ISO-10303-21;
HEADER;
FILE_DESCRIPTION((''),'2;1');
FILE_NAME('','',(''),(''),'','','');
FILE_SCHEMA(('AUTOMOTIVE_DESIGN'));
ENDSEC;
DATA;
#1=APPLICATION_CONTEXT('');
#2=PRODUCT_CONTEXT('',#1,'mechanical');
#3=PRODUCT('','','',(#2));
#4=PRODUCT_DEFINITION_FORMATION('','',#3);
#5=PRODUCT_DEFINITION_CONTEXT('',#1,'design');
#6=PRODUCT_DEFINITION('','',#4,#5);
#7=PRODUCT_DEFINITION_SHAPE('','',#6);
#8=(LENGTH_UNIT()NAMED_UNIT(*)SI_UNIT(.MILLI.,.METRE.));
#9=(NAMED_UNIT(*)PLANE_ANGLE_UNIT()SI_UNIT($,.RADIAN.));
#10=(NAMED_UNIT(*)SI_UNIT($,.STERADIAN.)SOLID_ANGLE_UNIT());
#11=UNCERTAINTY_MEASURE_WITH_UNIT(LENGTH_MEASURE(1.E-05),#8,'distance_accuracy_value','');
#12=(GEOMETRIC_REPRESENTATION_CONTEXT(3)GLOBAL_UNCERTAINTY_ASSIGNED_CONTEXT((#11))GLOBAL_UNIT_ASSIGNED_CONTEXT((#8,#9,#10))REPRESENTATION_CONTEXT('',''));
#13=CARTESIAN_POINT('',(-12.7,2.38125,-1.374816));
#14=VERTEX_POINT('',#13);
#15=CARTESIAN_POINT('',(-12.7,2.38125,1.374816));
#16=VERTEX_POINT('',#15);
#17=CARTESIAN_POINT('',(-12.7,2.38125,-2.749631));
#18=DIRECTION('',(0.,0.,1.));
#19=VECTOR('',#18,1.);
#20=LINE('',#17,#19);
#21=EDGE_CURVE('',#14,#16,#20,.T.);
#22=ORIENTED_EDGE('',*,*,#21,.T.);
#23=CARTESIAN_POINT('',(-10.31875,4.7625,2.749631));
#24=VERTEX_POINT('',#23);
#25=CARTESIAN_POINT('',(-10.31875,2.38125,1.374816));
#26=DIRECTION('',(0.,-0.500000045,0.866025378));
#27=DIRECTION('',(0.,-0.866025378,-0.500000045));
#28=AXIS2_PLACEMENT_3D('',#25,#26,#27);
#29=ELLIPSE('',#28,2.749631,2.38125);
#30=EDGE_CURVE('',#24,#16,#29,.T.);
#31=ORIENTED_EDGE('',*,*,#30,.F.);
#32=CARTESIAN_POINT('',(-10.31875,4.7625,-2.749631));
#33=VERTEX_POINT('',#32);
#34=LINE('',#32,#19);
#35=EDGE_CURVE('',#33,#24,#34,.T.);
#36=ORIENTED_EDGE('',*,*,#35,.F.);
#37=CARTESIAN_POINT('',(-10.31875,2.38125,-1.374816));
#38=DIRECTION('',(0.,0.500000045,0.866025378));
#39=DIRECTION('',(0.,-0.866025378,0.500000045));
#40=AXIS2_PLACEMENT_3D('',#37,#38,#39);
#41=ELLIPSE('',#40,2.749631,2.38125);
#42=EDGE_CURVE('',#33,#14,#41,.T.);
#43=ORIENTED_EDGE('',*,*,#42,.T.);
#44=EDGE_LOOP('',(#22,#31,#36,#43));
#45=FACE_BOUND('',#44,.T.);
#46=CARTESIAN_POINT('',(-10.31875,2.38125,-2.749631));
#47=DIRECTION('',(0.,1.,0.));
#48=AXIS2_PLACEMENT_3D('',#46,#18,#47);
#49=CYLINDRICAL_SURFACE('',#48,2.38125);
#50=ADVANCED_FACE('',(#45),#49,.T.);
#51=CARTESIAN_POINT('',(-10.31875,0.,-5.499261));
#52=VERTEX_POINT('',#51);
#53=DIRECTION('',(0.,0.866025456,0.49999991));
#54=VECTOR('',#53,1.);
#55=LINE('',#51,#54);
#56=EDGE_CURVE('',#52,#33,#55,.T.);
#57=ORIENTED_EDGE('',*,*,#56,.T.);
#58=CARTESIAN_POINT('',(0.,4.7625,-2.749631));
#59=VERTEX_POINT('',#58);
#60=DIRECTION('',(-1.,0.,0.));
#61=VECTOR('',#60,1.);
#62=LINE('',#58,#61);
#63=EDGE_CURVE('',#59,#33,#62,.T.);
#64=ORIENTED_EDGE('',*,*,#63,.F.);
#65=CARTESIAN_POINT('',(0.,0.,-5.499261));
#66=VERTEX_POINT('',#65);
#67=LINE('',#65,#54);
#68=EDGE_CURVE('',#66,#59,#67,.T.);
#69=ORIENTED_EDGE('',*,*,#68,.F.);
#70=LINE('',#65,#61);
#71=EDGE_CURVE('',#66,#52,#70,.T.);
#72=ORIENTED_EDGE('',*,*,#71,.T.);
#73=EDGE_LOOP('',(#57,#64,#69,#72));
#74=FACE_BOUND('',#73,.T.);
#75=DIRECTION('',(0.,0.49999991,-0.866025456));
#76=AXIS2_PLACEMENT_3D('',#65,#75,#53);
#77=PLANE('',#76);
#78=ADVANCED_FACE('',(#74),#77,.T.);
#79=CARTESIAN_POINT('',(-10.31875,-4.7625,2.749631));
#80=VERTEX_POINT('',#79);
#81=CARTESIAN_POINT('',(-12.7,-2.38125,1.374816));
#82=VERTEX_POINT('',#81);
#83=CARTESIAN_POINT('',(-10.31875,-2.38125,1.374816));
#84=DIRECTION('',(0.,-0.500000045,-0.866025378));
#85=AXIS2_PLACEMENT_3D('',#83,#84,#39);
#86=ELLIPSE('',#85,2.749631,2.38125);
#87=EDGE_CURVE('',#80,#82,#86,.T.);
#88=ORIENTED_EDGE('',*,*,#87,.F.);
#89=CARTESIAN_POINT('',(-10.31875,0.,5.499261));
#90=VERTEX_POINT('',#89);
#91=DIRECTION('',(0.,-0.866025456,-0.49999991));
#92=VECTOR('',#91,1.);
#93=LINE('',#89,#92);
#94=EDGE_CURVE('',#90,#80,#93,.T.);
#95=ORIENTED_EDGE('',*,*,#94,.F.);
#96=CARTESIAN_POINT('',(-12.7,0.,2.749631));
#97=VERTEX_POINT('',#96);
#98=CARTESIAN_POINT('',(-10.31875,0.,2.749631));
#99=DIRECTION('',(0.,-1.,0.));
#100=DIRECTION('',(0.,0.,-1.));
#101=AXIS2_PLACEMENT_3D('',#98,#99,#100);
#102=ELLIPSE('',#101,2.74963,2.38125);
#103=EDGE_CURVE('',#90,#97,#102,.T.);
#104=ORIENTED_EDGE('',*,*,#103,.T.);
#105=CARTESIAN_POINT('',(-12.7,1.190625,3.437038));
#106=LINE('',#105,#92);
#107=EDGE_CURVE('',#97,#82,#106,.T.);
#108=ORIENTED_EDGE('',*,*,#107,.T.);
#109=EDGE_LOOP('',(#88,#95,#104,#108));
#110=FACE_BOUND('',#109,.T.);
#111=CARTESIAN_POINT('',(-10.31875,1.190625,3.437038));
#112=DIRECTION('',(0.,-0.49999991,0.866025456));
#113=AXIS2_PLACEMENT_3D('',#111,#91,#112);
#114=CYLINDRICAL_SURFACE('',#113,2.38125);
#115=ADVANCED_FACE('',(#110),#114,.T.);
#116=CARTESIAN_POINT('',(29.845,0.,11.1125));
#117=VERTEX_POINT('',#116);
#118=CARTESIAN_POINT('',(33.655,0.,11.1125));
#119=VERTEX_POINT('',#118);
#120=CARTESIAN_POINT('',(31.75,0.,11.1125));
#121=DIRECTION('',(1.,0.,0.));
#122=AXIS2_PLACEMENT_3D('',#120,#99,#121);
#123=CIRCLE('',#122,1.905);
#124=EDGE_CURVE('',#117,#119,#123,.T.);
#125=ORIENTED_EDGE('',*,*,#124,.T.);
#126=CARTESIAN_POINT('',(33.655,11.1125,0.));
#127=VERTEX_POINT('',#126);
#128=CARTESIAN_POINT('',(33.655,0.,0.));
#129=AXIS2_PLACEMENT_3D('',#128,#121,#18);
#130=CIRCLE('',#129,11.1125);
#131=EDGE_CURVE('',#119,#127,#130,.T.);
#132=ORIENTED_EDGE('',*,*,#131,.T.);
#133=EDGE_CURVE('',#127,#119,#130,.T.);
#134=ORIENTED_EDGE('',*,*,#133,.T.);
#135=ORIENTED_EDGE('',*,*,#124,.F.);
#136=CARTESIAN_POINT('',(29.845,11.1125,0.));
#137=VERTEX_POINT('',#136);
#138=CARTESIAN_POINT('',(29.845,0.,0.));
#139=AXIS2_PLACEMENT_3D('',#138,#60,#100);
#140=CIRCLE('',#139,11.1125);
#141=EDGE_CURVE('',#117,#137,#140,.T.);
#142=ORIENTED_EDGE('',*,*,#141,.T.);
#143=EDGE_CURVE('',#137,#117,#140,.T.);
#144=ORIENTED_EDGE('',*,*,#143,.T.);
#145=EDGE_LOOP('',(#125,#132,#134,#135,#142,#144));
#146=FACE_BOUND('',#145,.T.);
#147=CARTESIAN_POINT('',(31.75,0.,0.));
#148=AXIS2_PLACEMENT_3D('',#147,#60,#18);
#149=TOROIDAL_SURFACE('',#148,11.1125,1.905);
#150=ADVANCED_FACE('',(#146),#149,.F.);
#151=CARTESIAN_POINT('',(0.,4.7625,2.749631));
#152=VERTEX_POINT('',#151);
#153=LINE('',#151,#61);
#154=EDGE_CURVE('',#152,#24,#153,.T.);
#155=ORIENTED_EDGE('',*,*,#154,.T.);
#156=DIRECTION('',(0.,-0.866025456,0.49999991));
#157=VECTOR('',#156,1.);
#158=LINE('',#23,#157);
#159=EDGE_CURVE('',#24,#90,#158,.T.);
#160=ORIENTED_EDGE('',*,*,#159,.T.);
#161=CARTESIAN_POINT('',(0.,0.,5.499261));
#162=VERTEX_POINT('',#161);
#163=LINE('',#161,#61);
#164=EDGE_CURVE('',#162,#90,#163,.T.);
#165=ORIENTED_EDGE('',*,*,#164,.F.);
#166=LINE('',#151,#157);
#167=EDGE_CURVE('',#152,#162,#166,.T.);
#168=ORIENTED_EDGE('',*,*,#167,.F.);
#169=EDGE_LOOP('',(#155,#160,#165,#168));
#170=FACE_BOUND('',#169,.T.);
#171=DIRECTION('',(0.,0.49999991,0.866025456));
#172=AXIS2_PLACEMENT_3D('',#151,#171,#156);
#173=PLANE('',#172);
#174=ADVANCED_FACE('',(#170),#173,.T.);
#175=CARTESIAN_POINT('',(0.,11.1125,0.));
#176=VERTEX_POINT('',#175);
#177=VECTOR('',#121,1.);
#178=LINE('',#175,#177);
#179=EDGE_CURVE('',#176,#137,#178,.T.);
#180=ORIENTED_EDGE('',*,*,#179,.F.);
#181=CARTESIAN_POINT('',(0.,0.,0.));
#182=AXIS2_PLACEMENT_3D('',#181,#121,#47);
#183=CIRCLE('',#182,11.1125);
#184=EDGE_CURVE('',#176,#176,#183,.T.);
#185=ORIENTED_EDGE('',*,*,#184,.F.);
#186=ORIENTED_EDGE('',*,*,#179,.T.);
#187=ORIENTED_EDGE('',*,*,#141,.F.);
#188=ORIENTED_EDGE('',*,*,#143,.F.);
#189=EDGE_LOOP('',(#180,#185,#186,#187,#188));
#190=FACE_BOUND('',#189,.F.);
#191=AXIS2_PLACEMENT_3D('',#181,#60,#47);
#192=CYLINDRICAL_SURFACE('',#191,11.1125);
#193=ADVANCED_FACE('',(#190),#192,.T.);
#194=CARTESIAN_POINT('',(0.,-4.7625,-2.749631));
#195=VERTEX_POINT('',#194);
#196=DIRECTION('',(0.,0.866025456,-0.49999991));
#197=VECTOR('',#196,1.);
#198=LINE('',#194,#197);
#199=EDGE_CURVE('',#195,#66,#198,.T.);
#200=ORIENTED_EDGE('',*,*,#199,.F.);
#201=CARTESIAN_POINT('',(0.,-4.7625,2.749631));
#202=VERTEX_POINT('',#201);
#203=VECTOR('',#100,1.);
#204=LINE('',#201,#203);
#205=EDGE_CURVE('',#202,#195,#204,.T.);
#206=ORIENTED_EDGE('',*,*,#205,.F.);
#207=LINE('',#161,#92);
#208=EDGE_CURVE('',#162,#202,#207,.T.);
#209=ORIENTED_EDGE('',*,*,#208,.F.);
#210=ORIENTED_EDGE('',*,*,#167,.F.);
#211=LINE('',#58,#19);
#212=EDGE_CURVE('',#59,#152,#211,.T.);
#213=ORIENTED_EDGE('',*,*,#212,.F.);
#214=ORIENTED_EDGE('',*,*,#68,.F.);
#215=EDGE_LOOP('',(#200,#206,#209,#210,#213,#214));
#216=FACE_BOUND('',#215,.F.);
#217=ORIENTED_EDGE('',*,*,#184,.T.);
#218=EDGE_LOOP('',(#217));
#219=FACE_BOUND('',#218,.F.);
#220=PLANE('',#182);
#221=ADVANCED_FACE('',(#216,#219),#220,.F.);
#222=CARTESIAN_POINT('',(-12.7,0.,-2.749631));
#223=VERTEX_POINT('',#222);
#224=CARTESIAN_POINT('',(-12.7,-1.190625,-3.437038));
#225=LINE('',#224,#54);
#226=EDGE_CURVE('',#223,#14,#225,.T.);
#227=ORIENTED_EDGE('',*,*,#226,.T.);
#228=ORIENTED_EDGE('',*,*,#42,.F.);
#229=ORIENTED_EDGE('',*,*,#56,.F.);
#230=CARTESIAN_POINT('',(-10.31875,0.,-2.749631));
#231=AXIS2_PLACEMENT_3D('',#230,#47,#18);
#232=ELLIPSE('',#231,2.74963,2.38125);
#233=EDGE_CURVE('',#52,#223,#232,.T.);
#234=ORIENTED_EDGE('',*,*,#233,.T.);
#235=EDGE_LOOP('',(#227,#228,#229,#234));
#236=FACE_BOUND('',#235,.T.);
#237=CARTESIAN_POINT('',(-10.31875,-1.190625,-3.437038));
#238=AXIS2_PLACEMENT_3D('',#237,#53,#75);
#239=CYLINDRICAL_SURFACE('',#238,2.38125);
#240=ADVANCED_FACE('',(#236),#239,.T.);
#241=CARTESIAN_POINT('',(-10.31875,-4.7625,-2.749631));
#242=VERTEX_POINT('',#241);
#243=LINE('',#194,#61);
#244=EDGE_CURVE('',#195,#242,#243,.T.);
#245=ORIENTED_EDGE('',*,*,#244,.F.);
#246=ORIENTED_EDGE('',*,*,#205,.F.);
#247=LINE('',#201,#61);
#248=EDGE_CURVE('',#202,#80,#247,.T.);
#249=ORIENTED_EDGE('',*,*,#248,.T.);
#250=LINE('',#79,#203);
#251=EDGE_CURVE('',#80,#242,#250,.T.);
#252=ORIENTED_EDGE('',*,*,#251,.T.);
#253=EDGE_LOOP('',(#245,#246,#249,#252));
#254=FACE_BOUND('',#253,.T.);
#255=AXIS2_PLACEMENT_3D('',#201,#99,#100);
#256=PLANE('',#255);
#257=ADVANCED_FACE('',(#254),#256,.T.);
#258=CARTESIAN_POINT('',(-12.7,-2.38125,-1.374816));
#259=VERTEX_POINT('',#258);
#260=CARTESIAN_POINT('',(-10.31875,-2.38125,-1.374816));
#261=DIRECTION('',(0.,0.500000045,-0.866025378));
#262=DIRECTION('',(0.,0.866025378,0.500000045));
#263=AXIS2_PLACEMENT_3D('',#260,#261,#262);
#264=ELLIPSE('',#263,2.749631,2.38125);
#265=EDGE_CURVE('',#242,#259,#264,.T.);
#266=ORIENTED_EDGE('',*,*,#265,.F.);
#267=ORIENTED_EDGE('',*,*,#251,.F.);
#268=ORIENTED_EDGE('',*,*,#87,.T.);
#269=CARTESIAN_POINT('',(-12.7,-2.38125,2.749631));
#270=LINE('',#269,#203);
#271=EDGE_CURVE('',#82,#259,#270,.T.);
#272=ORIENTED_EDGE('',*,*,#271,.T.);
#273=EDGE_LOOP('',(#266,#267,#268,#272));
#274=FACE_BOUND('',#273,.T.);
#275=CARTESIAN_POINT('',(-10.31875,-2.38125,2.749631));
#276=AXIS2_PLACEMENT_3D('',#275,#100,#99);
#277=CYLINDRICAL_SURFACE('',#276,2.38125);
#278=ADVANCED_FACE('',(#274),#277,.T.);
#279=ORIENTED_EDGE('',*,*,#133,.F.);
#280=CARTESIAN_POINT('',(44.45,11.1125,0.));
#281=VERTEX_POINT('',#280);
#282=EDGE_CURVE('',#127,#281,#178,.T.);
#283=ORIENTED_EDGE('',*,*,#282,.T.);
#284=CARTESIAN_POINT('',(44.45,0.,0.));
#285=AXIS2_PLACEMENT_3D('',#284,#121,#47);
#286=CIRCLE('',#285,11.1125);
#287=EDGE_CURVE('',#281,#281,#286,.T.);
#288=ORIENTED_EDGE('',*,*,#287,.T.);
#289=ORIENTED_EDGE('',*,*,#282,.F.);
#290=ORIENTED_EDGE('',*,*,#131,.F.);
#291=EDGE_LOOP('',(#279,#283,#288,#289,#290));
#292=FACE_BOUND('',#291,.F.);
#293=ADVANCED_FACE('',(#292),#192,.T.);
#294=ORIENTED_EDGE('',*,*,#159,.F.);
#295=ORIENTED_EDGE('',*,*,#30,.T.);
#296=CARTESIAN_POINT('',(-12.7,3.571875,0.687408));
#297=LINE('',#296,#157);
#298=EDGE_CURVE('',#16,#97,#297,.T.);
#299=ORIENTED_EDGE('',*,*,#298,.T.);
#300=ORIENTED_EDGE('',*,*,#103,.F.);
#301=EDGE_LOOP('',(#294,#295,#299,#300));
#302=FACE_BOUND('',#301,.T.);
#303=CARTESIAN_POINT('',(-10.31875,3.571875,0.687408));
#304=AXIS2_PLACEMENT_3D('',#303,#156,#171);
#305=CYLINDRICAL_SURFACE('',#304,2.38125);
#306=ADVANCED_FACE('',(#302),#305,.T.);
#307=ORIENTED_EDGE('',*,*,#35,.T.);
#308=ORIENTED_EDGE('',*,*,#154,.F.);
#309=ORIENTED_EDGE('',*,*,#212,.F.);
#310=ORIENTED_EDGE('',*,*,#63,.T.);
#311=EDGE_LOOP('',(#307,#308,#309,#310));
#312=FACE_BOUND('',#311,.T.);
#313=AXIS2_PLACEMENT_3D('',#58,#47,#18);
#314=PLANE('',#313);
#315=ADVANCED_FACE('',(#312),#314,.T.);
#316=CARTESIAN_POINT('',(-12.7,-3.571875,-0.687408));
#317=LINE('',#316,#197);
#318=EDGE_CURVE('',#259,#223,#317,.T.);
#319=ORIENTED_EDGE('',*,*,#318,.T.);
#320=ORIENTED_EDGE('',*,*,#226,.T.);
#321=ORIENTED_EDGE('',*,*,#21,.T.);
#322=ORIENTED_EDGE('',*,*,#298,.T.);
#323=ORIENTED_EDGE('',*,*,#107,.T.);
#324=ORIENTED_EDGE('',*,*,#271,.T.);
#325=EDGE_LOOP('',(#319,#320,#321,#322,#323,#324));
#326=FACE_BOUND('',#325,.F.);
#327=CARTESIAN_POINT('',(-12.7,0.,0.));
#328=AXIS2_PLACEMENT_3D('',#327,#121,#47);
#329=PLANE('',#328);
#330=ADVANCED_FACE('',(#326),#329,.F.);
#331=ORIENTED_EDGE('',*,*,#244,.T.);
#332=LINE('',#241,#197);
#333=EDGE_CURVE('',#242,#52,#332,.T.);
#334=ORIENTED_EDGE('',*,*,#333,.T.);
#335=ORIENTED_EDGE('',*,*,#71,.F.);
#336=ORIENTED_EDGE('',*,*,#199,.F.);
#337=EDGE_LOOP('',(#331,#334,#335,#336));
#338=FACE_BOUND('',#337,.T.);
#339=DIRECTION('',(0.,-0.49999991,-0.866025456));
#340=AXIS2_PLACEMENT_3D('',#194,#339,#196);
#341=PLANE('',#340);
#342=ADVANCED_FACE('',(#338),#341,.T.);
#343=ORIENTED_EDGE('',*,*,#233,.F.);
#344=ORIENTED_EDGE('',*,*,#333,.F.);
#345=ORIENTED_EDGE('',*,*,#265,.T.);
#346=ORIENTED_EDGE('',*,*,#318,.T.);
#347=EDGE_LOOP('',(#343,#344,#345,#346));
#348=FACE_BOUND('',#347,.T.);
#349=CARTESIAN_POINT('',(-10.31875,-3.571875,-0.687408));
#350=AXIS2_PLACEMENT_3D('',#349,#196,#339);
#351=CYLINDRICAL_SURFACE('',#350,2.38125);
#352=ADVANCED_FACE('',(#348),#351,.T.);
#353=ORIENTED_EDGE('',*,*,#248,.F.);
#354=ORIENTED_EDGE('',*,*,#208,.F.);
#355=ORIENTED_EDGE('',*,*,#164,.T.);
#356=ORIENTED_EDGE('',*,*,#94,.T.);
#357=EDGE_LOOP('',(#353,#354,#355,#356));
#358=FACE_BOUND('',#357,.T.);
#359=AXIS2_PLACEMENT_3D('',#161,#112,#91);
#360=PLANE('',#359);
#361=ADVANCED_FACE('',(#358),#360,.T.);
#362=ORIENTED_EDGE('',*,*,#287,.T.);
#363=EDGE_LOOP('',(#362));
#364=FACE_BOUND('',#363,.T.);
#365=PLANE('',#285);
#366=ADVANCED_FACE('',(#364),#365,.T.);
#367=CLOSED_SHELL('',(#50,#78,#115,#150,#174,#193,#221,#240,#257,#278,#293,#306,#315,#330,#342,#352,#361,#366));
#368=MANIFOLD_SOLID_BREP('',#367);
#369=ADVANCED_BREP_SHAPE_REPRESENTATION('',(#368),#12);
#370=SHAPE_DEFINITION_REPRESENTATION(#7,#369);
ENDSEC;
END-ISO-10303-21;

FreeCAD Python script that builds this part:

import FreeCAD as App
import Part
import Sketcher
from FreeCAD import Vector
Q = App.Units.Quantity


def edges_at(feature, points):
    """Names of the edges that pass closest to the given points."""
    edges = feature.Shape.Edges
    near = lambda p: min(range(len(edges)), key=lambda i: edges[i].distToShape(Part.Vertex(*p))[0])
    return sorted({f"Edge{near(p) + 1}" for p in points})

doc = App.newDocument("Part")
body = doc.addObject("PartDesign::Body", "Body")

sketch1 = body.newObject("Sketcher::SketchObject", "Sketch")
sketch1.AttachmentSupport = (doc.getObject("YZ_Plane"), [""])
sketch1.MapMode = "FlatFace"
sketch1.addGeometry(Part.Circle(Vector(0, 0, 0), Vector(0, 0, 1), 11.1125), False)
sketch1.addConstraint(Sketcher.Constraint("Coincident", 0, 3, -1, 1))
sketch1.addConstraint(Sketcher.Constraint("Diameter", 0, Q("0.875 in")))
pad1 = body.newObject("PartDesign::Pad", "Pad")
pad1.Profile = sketch1
pad1.Length = Q("1.75 in")

sketch2 = body.newObject("Sketcher::SketchObject", "Sketch001")
sketch2.AttachmentSupport = (doc.getObject("YZ_Plane"), [""])
sketch2.MapMode = "FlatFace"
sketch2.addGeometry(Part.LineSegment(Vector(-4.7625, 2.749631, 0), Vector(-4.7625, -2.749631, 0)), False)
sketch2.addGeometry(Part.LineSegment(Vector(-4.7625, -2.749631, 0), Vector(0, -5.499261, 0)), False)
sketch2.addGeometry(Part.LineSegment(Vector(0, -5.499261, 0), Vector(4.7625, -2.749631, 0)), False)
sketch2.addGeometry(Part.LineSegment(Vector(4.7625, -2.749631, 0), Vector(4.7625, 2.749631, 0)), False)
sketch2.addGeometry(Part.LineSegment(Vector(4.7625, 2.749631, 0), Vector(0, 5.499261, 0)), False)
sketch2.addGeometry(Part.LineSegment(Vector(0, 5.499261, 0), Vector(-4.7625, 2.749631, 0)), False)
sketch2.addConstraint(Sketcher.Constraint("Coincident", 0, 2, 1, 1))
sketch2.addConstraint(Sketcher.Constraint("Coincident", 1, 2, 2, 1))
sketch2.addConstraint(Sketcher.Constraint("Coincident", 2, 2, 3, 1))
sketch2.addConstraint(Sketcher.Constraint("Coincident", 3, 2, 4, 1))
sketch2.addConstraint(Sketcher.Constraint("Coincident", 4, 2, 5, 1))
sketch2.addConstraint(Sketcher.Constraint("Coincident", 5, 2, 0, 1))
sketch2.addConstraint(Sketcher.Constraint("Vertical", 0))
sketch2.addConstraint(Sketcher.Constraint("Vertical", 3))
sketch2.addConstraint(Sketcher.Constraint("Symmetric", 0, 2, 3, 2, -1, 1))
sketch2.addConstraint(Sketcher.Constraint("Symmetric", 1, 2, 4, 2, -1, 1))
sketch2.addConstraint(Sketcher.Constraint("PointOnObject", 1, 2, -2))
sketch2.addConstraint(Sketcher.Constraint("Parallel", 2, 5))
sketch2.addConstraint(Sketcher.Constraint("Horizontal", 0, 2, 2, 2))
sketch2.addConstraint(Sketcher.Constraint("Angle", 1, Q("-29.999994 deg")))
sketch2.addConstraint(Sketcher.Constraint("DistanceX", 0, 2, -1, 1, Q("0.1875 in")))
sketch2.addConstraint(Sketcher.Constraint("DistanceY", 0, 2, 0, 1, Q("5.499262 mm")))
pad2 = body.newObject("PartDesign::Pad", "Pad001")
pad2.Profile = sketch2
pad2.Length = Q("0.5 in")
pad2.Reversed = True
doc.recompute()

fillet = body.newObject("PartDesign::Fillet", "Fillet")
fillet.Base = (pad2, edges_at(pad2, [
    (-12.7, -2.381, 4.124),
    (-12.7, 2.381, 4.124),
    (-12.7, 4.763, 0),
    (-12.7, 2.381, -4.124),
    (-12.7, -2.381, -4.124),
    (-12.7, -4.763, 0),
]))
fillet.Radius = Q("0.09375 in")

sketch3 = body.newObject("Sketcher::SketchObject", "Sketch002")
sketch3.AttachmentSupport = (doc.getObject("XZ_Plane"), [""])
sketch3.MapMode = "FlatFace"
sketch3.addGeometry(Part.Circle(Vector(31.75, 11.1125, 0), Vector(0, 0, 1), 1.905), False)
sketch3.addConstraint(Sketcher.Constraint("Diameter", 0, Q("0.15 in")))
sketch3.addConstraint(Sketcher.Constraint("DistanceX", -1, 1, 0, 3, Q("1.25 in")))
sketch3.addConstraint(Sketcher.Constraint("DistanceY", -1, 1, 0, 3, Q("0.4375 in")))
groove = body.newObject("PartDesign::Groove", "Groove")
groove.Profile = sketch3
groove.ReferenceAxis = (sketch3, ["H_Axis"])
groove.Angle = 360

doc.recompute()
